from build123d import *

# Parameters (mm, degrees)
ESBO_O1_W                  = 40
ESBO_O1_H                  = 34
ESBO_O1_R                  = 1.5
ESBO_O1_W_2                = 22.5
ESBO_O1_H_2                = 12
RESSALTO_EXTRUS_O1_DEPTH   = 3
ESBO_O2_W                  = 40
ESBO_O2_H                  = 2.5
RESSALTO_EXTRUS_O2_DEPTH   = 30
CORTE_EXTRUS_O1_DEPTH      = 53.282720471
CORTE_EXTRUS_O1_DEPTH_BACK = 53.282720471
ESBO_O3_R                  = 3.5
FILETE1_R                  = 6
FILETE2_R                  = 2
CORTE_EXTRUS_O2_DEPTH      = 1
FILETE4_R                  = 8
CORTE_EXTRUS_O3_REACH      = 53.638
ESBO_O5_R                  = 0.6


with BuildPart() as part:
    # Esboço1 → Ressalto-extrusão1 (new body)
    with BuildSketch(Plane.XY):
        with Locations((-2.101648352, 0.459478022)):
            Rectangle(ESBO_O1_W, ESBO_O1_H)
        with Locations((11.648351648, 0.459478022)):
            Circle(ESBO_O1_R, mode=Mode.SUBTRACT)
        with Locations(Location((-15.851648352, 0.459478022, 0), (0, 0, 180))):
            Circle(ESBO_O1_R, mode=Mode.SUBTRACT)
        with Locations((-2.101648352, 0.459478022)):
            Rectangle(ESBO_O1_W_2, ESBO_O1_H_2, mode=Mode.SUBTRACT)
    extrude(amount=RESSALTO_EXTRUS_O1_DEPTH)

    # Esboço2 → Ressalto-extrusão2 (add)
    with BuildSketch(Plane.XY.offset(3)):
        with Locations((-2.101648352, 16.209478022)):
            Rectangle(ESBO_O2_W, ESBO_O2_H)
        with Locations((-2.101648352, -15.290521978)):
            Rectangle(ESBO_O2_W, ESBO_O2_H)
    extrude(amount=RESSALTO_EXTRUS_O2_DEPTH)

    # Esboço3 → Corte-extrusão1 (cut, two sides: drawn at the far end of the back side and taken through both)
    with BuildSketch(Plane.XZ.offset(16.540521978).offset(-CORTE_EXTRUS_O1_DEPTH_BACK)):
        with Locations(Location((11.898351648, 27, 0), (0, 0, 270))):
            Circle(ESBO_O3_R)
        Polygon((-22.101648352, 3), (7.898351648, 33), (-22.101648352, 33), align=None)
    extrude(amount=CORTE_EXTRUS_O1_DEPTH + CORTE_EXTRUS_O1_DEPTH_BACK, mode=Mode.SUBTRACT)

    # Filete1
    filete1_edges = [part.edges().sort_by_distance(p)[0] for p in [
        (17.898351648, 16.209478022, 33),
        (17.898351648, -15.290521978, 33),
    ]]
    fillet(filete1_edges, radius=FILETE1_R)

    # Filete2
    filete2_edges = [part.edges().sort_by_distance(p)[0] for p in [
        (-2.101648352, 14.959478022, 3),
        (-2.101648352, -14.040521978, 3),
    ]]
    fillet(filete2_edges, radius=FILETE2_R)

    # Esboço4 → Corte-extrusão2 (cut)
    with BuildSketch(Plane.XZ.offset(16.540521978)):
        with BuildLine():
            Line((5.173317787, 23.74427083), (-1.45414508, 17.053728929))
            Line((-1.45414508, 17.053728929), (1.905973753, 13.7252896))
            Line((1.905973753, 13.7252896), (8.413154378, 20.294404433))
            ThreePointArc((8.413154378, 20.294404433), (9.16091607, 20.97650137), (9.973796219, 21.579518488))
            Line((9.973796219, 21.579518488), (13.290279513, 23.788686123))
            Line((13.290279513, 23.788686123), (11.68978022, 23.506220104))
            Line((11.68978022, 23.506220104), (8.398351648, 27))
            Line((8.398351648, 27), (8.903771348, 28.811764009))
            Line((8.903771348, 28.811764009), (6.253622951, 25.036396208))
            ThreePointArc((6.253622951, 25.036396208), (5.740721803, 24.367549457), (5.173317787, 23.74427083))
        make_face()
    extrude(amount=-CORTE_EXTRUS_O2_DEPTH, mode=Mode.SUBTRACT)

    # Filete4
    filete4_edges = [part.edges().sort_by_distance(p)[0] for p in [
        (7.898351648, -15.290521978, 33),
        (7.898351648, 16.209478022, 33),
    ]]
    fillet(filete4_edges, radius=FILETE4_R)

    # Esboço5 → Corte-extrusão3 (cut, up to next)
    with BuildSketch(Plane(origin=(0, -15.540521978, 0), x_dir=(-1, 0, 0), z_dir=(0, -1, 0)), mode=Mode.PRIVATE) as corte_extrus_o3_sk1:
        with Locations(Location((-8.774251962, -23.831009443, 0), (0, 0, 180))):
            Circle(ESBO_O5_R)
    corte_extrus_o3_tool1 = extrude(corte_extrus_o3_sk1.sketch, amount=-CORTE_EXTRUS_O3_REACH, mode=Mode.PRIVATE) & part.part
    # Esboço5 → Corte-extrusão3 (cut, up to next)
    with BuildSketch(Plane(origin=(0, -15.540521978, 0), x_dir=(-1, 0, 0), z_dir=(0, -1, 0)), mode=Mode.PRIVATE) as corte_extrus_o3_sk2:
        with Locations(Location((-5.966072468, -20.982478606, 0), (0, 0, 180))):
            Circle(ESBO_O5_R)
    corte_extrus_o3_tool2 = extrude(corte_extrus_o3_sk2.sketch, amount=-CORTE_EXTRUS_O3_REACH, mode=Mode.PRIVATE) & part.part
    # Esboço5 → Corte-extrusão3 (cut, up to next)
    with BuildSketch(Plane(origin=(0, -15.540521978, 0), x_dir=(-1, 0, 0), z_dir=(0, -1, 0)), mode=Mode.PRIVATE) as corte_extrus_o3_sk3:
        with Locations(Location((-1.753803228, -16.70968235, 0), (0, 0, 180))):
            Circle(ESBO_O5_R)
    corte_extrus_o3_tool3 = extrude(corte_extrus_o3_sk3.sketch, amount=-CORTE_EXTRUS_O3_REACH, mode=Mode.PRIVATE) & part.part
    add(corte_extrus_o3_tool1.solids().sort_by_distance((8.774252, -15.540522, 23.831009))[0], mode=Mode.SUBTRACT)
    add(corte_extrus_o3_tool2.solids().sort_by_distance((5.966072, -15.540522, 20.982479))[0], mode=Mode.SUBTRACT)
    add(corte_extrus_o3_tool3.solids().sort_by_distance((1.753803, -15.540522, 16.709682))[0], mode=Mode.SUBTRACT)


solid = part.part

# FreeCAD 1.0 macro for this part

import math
import FreeCAD as App
import Part
import Sketcher
from FreeCAD import Vector
Q = App.Units.Quantity


def edges_at(feature, points):
    """Names of the edges that pass closest to the given points."""
    edges = feature.Shape.Edges
    near = lambda p: min(range(len(edges)), key=lambda i: edges[i].distToShape(Part.Vertex(*p))[0])
    return sorted({f"Edge{near(p) + 1}" for p in points})

doc = App.newDocument("Part")
body = doc.addObject("PartDesign::Body", "Body")

# Sketch on XY plane
sketch1 = body.newObject("Sketcher::SketchObject", "Sketch")
sketch1.AttachmentSupport = (doc.getObject("XY_Plane"), [""])
sketch1.MapMode = "FlatFace"
sketch1.addGeometry(Part.LineSegment(Vector(-22.1, 17.5, 0), Vector(-22.1, -16.5, 0)), False)
sketch1.addGeometry(Part.LineSegment(Vector(-22.1, -16.5, 0), Vector(17.9, -16.5, 0)), False)
sketch1.addGeometry(Part.LineSegment(Vector(17.9, -16.5, 0), Vector(17.9, 17.5, 0)), False)
sketch1.addGeometry(Part.LineSegment(Vector(17.9, 17.5, 0), Vector(-22.1, 17.5, 0)), False)
sketch1.addGeometry(Part.Circle(Vector(-15.9, 0.5, 0), Vector(0, 0, 1), 1.5), False)
sketch1.addGeometry(Part.LineSegment(Vector(9.1, -5.5, 0), Vector(-13.4, -5.5, 0)), False)
sketch1.addGeometry(Part.LineSegment(Vector(-13.4, -5.5, 0), Vector(-13.4, 6.5, 0)), False)
sketch1.addGeometry(Part.LineSegment(Vector(-13.4, 6.5, 0), Vector(9.1, 6.5, 0)), False)
sketch1.addGeometry(Part.LineSegment(Vector(9.1, 6.5, 0), Vector(9.1, -5.5, 0)), False)
sketch1.addGeometry(Part.Circle(Vector(11.6, 0.5, 0), Vector(0, 0, 1), 1.5), False)
sketch1.addConstraint(Sketcher.Constraint("Coincident", 0, 2, 1, 1))
sketch1.addConstraint(Sketcher.Constraint("Coincident", 1, 2, 2, 1))
sketch1.addConstraint(Sketcher.Constraint("Coincident", 2, 2, 3, 1))
sketch1.addConstraint(Sketcher.Constraint("Coincident", 3, 2, 0, 1))
sketch1.addConstraint(Sketcher.Constraint("Coincident", 5, 2, 6, 1))
sketch1.addConstraint(Sketcher.Constraint("Coincident", 6, 2, 7, 1))
sketch1.addConstraint(Sketcher.Constraint("Coincident", 7, 2, 8, 1))
sketch1.addConstraint(Sketcher.Constraint("Coincident", 8, 2, 5, 1))
sketch1.addConstraint(Sketcher.Constraint("Vertical", 0))
sketch1.addConstraint(Sketcher.Constraint("Horizontal", 1))
sketch1.addConstraint(Sketcher.Constraint("Vertical", 2))
sketch1.addConstraint(Sketcher.Constraint("Horizontal", 3))
sketch1.addConstraint(Sketcher.Constraint("Horizontal", 5))
sketch1.addConstraint(Sketcher.Constraint("Vertical", 6))
sketch1.addConstraint(Sketcher.Constraint("Horizontal", 7))
sketch1.addConstraint(Sketcher.Constraint("Vertical", 8))
sketch1.addConstraint(Sketcher.Constraint("Equal", 4, 9))
sketch1.addConstraint(Sketcher.Constraint("Horizontal", 4, 3, 9, 3))
sketch1.addConstraint(Sketcher.Constraint("Diameter", 4, Q("3 mm")))
sketch1.addConstraint(Sketcher.Constraint("DistanceX", 1, 1, 1, 2, Q("40 mm")))
sketch1.addConstraint(Sketcher.Constraint("DistanceY", 0, 2, 0, 1, Q("34 mm")))
sketch1.addConstraint(Sketcher.Constraint("DistanceY", 6, 1, 6, 2, Q("12 mm")))
sketch1.addConstraint(Sketcher.Constraint("DistanceX", 5, 2, 5, 1, Q("22.5 mm")))
sketch1.addConstraint(Sketcher.Constraint("DistanceY", 0, 2, 4, 3, Q("17 mm")))
sketch1.addConstraint(Sketcher.Constraint("DistanceY", 5, 2, 4, 3, Q("6 mm")))
sketch1.addConstraint(Sketcher.Constraint("DistanceX", 5, 2, 9, 3, Q("25 mm")))
sketch1.addConstraint(Sketcher.Constraint("DistanceX", 4, 3, 9, 3, Q("27.5 mm")))
sketch1.addConstraint(Sketcher.Constraint("DistanceX", 0, 2, 4, 3, Q("6.25 mm")))
sketch1.addConstraint(Sketcher.Constraint("DistanceX", 4, 3, -1, 1, Q("15.851648 mm")))
sketch1.addConstraint(Sketcher.Constraint("DistanceY", -1, 1, 4, 3, Q("0.459478 mm")))
pad1 = body.newObject("PartDesign::Pad", "Pad")
pad1.Profile = sketch1
pad1.Length = 3

# Sketch on XY plane
sketch2 = body.newObject("Sketcher::SketchObject", "Sketch001")
sketch2.AttachmentSupport = (doc.getObject("XY_Plane"), [""])
sketch2.MapMode = "FlatFace"
sketch2.AttachmentOffset = App.Placement(Vector(0, 0, 3), App.Rotation())
sketch2.addGeometry(Part.LineSegment(Vector(-22.1, 17.5, 0), Vector(-22.1, 15, 0)), False)
sketch2.addGeometry(Part.LineSegment(Vector(-22.1, 15, 0), Vector(17.9, 15, 0)), False)
sketch2.addGeometry(Part.LineSegment(Vector(17.9, 15, 0), Vector(17.9, 17.5, 0)), False)
sketch2.addGeometry(Part.LineSegment(Vector(17.9, 17.5, 0), Vector(-22.1, 17.5, 0)), False)
sketch2.addGeometry(Part.LineSegment(Vector(-22.1, -14, 0), Vector(-22.1, -16.5, 0)), False)
sketch2.addGeometry(Part.LineSegment(Vector(-22.1, -16.5, 0), Vector(17.9, -16.5, 0)), False)
sketch2.addGeometry(Part.LineSegment(Vector(17.9, -16.5, 0), Vector(17.9, -14, 0)), False)
sketch2.addGeometry(Part.LineSegment(Vector(17.9, -14, 0), Vector(-22.1, -14, 0)), False)
sketch2.addConstraint(Sketcher.Constraint("Coincident", 0, 2, 1, 1))
sketch2.addConstraint(Sketcher.Constraint("Coincident", 1, 2, 2, 1))
sketch2.addConstraint(Sketcher.Constraint("Coincident", 2, 2, 3, 1))
sketch2.addConstraint(Sketcher.Constraint("Coincident", 3, 2, 0, 1))
sketch2.addConstraint(Sketcher.Constraint("Coincident", 4, 2, 5, 1))
sketch2.addConstraint(Sketcher.Constraint("Coincident", 5, 2, 6, 1))
sketch2.addConstraint(Sketcher.Constraint("Coincident", 6, 2, 7, 1))
sketch2.addConstraint(Sketcher.Constraint("Coincident", 7, 2, 4, 1))
sketch2.addConstraint(Sketcher.Constraint("Vertical", 0))
sketch2.addConstraint(Sketcher.Constraint("Horizontal", 1))
sketch2.addConstraint(Sketcher.Constraint("Vertical", 2))
sketch2.addConstraint(Sketcher.Constraint("Horizontal", 3))
sketch2.addConstraint(Sketcher.Constraint("Vertical", 4))
sketch2.addConstraint(Sketcher.Constraint("Horizontal", 5))
sketch2.addConstraint(Sketcher.Constraint("Vertical", 6))
sketch2.addConstraint(Sketcher.Constraint("Horizontal", 7))
sketch2.addConstraint(Sketcher.Constraint("Vertical", 3, 2, 4, 2))
sketch2.addConstraint(Sketcher.Constraint("Vertical", 2, 2, 5, 2))
sketch2.addConstraint(Sketcher.Constraint("Equal", 2, 4))
sketch2.addConstraint(Sketcher.Constraint("DistanceX", 1, 1, 1, 2, Q("40 mm")))
sketch2.addConstraint(Sketcher.Constraint("DistanceY", 0, 2, 0, 1, Q("2.5 mm")))
sketch2.addConstraint(Sketcher.Constraint("DistanceY", 4, 2, 3, 2, Q("34 mm")))
sketch2.addConstraint(Sketcher.Constraint("DistanceX", 0, 2, -1, 1, Q("22.101648 mm")))
sketch2.addConstraint(Sketcher.Constraint("DistanceY", -1, 1, 0, 2, Q("14.959478 mm")))
pad2 = body.newObject("PartDesign::Pad", "Pad001")
pad2.Profile = sketch2
pad2.Length = 30

# Sketch on XZ plane
sketch3 = body.newObject("Sketcher::SketchObject", "Sketch002")
sketch3.AttachmentSupport = (doc.getObject("XZ_Plane"), [""])
sketch3.MapMode = "FlatFace"
sketch3.AttachmentOffset = App.Placement(Vector(0, 0, 16.540522), App.Rotation())
sketch3.addGeometry(Part.Circle(Vector(11.9, 27, 0), Vector(0, 0, 1), 3.5), False)
sketch3.addGeometry(Part.LineSegment(Vector(-22.1, 3, 0), Vector(7.9, 33, 0)), False)
sketch3.addGeometry(Part.LineSegment(Vector(7.9, 33, 0), Vector(-22.1, 33, 0)), False)
sketch3.addGeometry(Part.LineSegment(Vector(-22.1, 33, 0), Vector(-22.1, 3, 0)), False)
sketch3.addConstraint(Sketcher.Constraint("Coincident", 1, 2, 2, 1))
sketch3.addConstraint(Sketcher.Constraint("Coincident", 2, 2, 3, 1))
sketch3.addConstraint(Sketcher.Constraint("Coincident", 3, 2, 1, 1))
sketch3.addConstraint(Sketcher.Constraint("Horizontal", 2))
sketch3.addConstraint(Sketcher.Constraint("Vertical", 3))
sketch3.addConstraint(Sketcher.Constraint("Equal", 2, 3))
sketch3.addConstraint(Sketcher.Constraint("Diameter", 0, Q("7 mm")))
sketch3.addConstraint(Sketcher.Constraint("DistanceX", 2, 2, 2, 1, Q("30 mm")))
sketch3.addConstraint(Sketcher.Constraint("DistanceY", -1, 1, 0, 3, Q("27 mm")))
sketch3.addConstraint(Sketcher.Constraint("DistanceY", -1, 1, 1, 2, Q("33 mm")))
sketch3.addConstraint(Sketcher.Constraint("DistanceX", 1, 2, 0, 3, Q("4 mm")))
sketch3.addConstraint(Sketcher.Constraint("DistanceX", -1, 1, 0, 3, Q("11.898352 mm")))
pocket1 = body.newObject("PartDesign::Pocket", "Pocket")
pocket1.Profile = sketch3
pocket1.Type = "ThroughAll"
pocket1.Midplane = True
doc.recompute()

fillet = body.newObject("PartDesign::Fillet", "Fillet")
fillet.Base = (pocket1, edges_at(pocket1, [(17.898, 16.209, 33), (17.898, -15.291, 33)]))
fillet.Radius = 6
doc.recompute()

fillet2 = body.newObject("PartDesign::Fillet", "Fillet001")
fillet2.Base = (fillet, edges_at(fillet, [(-2.102, 14.959, 3), (-2.102, -14.041, 3)]))
fillet2.Radius = 2

# Sketch on XZ plane
sketch4 = body.newObject("Sketcher::SketchObject", "Sketch003")
sketch4.AttachmentSupport = (doc.getObject("XZ_Plane"), [""])
sketch4.MapMode = "FlatFace"
sketch4.AttachmentOffset = App.Placement(Vector(0, 0, 16.540522), App.Rotation())
sketch4.addGeometry(Part.LineSegment(Vector(5.173318, 23.744271, 0), Vector(-1.454145, 17.053729, 0)), False)
sketch4.addGeometry(Part.LineSegment(Vector(-1.454145, 17.053729, 0), Vector(1.905974, 13.72529, 0)), False)
sketch4.addGeometry(Part.LineSegment(Vector(1.905974, 13.72529, 0), Vector(8.413154, 20.294404, 0)), False)
sketch4.addGeometry(Part.ArcOfCircle(Part.Circle(Vector(15.517634, 13.256907, 0), Vector(0, 0, 1), 10), math.radians(123.668279), math.radians(135.271372)), False)
sketch4.addGeometry(Part.LineSegment(Vector(9.973796, 21.579518, 0), Vector(13.29028, 23.788686, 0)), False)
sketch4.addGeometry(Part.LineSegment(Vector(13.29028, 23.788686, 0), Vector(11.68978, 23.50622, 0)), False)
sketch4.addGeometry(Part.LineSegment(Vector(11.68978, 23.50622, 0), Vector(8.398352, 27, 0)), False)
sketch4.addGeometry(Part.LineSegment(Vector(8.398352, 27, 0), Vector(8.903771, 28.811764, 0)), False)
sketch4.addGeometry(Part.LineSegment(Vector(8.903771, 28.811764, 0), Vector(6.253623, 25.036396, 0)), False)
sketch4.addGeometry(Part.ArcOfCircle(Part.Circle(Vector(-1.931161, 30.781768, 0), Vector(0, 0, 1), 10), math.radians(-44.728628), math.radians(-35.06723)), False)
sketch4.addConstraint(Sketcher.Constraint("Coincident", 0, 2, 1, 1))
sketch4.addConstraint(Sketcher.Constraint("Coincident", 1, 2, 2, 1))
sketch4.addConstraint(Sketcher.Constraint("Coincident", 2, 2, 3, 2))
sketch4.addConstraint(Sketcher.Constraint("Coincident", 3, 1, 4, 1))
sketch4.addConstraint(Sketcher.Constraint("Coincident", 4, 2, 5, 1))
sketch4.addConstraint(Sketcher.Constraint("Coincident", 5, 2, 6, 1))
sketch4.addConstraint(Sketcher.Constraint("Coincident", 6, 2, 7, 1))
sketch4.addConstraint(Sketcher.Constraint("Coincident", 7, 2, 8, 1))
sketch4.addConstraint(Sketcher.Constraint("Coincident", 8, 2, 9, 2))
sketch4.addConstraint(Sketcher.Constraint("Coincident", 9, 1, 0, 1))
sketch4.addConstraint(Sketcher.Constraint("Radius", 3, Q("10 mm")))
sketch4.addConstraint(Sketcher.Constraint("Radius", 9, Q("10 mm")))
sketch4.addConstraint(Sketcher.Constraint("DistanceY", -1, 1, 6, 2, Q("27 mm")))
sketch4.addConstraint(Sketcher.Constraint("Distance", 6, Q("4.8 mm")))
sketch4.addConstraint(Sketcher.Constraint("DistanceX", 0, 2, 2, 2, Q("9.867299 mm")))
sketch4.addConstraint(Sketcher.Constraint("DistanceX", 5, 2, 4, 2, Q("1.600499 mm")))
sketch4.addConstraint(Sketcher.Constraint("DistanceY", 3, 1, 5, 2, Q("1.926702 mm")))
sketch4.addConstraint(Sketcher.Constraint("Distance", 2, Q("9.246441 mm")))
sketch4.addConstraint(Sketcher.Constraint("Distance", 7, Q("1.880941 mm")))
sketch4.addConstraint(Sketcher.Constraint("DistanceX", 9, 3, -1, 1, Q("1.931161 mm")))
sketch4.addConstraint(Sketcher.Constraint("DistanceY", -1, 1, 9, 3, Q("30.781768 mm")))
sketch4.addConstraint(Sketcher.Constraint("DistanceY", -1, 1, 0, 2, Q("17.053729 mm")))
sketch4.addConstraint(Sketcher.Constraint("DistanceY", -1, 1, 1, 2, Q("13.72529 mm")))
sketch4.addConstraint(Sketcher.Constraint("DistanceY", -1, 1, 3, 1, Q("21.579518 mm")))
sketch4.addConstraint(Sketcher.Constraint("DistanceX", -1, 1, 4, 2, Q("13.29028 mm")))
sketch4.addConstraint(Sketcher.Constraint("DistanceX", -1, 1, 7, 2, Q("8.903771 mm")))
sketch4.addConstraint(Sketcher.Constraint("DistanceY", -1, 1, 9, 1, Q("23.744271 mm")))
sketch4.addConstraint(Sketcher.Constraint("DistanceY", 3, 3, 9, 3, Q("17.524862 mm")))
sketch4.addConstraint(Sketcher.Constraint("DistanceX", 0, 2, 3, 3, Q("16.971779 mm")))
sketch4.addConstraint(Sketcher.Constraint("DistanceY", 2, 2, 4, 2, Q("3.494282 mm")))
sketch4.addConstraint(Sketcher.Constraint("DistanceX", 8, 2, 6, 2, Q("2.144729 mm")))
sketch4.addConstraint(Sketcher.Constraint("DistanceX", 8, 2, 2, 2, Q("2.159531 mm")))
pocket2 = body.newObject("PartDesign::Pocket", "Pocket001")
pocket2.Profile = sketch4
pocket2.Length = 1
doc.recompute()

fillet3 = body.newObject("PartDesign::Fillet", "Fillet002")
fillet3.Base = (pocket2, edges_at(pocket2, [(7.898, -15.291, 33), (7.898, 16.209, 33)]))
fillet3.Radius = 8

# Sketch on XZ plane
sketch5 = body.newObject("Sketcher::SketchObject", "Sketch004")
sketch5.AttachmentSupport = (doc.getObject("XZ_Plane"), [""])
sketch5.MapMode = "FlatFace"
sketch5.AttachmentOffset = App.Placement(Vector(0, 0, 15.540522), App.Rotation())
sketch5.addGeometry(Part.Circle(Vector(8.8, 23.8, 0), Vector(0, 0, 1), 0.6), False)
sketch5.addConstraint(Sketcher.Constraint("Diameter", 0, Q("1.2 mm")))
sketch5.addConstraint(Sketcher.Constraint("DistanceX", -1, 1, 0, 3, Q("8.774252 mm")))
sketch5.addConstraint(Sketcher.Constraint("DistanceY", -1, 1, 0, 3, Q("23.831009 mm")))
pocket3 = body.newObject("PartDesign::Pocket", "Pocket002")
pocket3.Profile = sketch5
pocket3.Type = "UpToFirst"

# Sketch on XZ plane
sketch6 = body.newObject("Sketcher::SketchObject", "Sketch005")
sketch6.AttachmentSupport = (doc.getObject("XZ_Plane"), [""])
sketch6.MapMode = "FlatFace"
sketch6.AttachmentOffset = App.Placement(Vector(0, 0, 15.540522), App.Rotation())
sketch6.addGeometry(Part.Circle(Vector(6, 21, 0), Vector(0, 0, 1), 0.6), False)
sketch6.addConstraint(Sketcher.Constraint("Diameter", 0, Q("1.2 mm")))
sketch6.addConstraint(Sketcher.Constraint("DistanceY", -1, 1, 0, 3, Q("20.982479 mm")))
sketch6.addConstraint(Sketcher.Constraint("DistanceX", -1, 1, 0, 3, Q("5.966072 mm")))
pocket4 = body.newObject("PartDesign::Pocket", "Pocket003")
pocket4.Profile = sketch6
pocket4.Type = "UpToFirst"

# Sketch on XZ plane
sketch7 = body.newObject("Sketcher::SketchObject", "Sketch006")
sketch7.AttachmentSupport = (doc.getObject("XZ_Plane"), [""])
sketch7.MapMode = "FlatFace"
sketch7.AttachmentOffset = App.Placement(Vector(0, 0, 15.540522), App.Rotation())
sketch7.addGeometry(Part.Circle(Vector(1.8, 16.7, 0), Vector(0, 0, 1), 0.6), False)
sketch7.addConstraint(Sketcher.Constraint("Diameter", 0, Q("1.2 mm")))
sketch7.addConstraint(Sketcher.Constraint("DistanceX", -1, 1, 0, 3, Q("1.753803 mm")))
sketch7.addConstraint(Sketcher.Constraint("DistanceY", -1, 1, 0, 3, Q("16.709682 mm")))
pocket5 = body.newObject("PartDesign::Pocket", "Pocket004")
pocket5.Profile = sketch7
pocket5.Type = "UpToFirst"

doc.recompute()
